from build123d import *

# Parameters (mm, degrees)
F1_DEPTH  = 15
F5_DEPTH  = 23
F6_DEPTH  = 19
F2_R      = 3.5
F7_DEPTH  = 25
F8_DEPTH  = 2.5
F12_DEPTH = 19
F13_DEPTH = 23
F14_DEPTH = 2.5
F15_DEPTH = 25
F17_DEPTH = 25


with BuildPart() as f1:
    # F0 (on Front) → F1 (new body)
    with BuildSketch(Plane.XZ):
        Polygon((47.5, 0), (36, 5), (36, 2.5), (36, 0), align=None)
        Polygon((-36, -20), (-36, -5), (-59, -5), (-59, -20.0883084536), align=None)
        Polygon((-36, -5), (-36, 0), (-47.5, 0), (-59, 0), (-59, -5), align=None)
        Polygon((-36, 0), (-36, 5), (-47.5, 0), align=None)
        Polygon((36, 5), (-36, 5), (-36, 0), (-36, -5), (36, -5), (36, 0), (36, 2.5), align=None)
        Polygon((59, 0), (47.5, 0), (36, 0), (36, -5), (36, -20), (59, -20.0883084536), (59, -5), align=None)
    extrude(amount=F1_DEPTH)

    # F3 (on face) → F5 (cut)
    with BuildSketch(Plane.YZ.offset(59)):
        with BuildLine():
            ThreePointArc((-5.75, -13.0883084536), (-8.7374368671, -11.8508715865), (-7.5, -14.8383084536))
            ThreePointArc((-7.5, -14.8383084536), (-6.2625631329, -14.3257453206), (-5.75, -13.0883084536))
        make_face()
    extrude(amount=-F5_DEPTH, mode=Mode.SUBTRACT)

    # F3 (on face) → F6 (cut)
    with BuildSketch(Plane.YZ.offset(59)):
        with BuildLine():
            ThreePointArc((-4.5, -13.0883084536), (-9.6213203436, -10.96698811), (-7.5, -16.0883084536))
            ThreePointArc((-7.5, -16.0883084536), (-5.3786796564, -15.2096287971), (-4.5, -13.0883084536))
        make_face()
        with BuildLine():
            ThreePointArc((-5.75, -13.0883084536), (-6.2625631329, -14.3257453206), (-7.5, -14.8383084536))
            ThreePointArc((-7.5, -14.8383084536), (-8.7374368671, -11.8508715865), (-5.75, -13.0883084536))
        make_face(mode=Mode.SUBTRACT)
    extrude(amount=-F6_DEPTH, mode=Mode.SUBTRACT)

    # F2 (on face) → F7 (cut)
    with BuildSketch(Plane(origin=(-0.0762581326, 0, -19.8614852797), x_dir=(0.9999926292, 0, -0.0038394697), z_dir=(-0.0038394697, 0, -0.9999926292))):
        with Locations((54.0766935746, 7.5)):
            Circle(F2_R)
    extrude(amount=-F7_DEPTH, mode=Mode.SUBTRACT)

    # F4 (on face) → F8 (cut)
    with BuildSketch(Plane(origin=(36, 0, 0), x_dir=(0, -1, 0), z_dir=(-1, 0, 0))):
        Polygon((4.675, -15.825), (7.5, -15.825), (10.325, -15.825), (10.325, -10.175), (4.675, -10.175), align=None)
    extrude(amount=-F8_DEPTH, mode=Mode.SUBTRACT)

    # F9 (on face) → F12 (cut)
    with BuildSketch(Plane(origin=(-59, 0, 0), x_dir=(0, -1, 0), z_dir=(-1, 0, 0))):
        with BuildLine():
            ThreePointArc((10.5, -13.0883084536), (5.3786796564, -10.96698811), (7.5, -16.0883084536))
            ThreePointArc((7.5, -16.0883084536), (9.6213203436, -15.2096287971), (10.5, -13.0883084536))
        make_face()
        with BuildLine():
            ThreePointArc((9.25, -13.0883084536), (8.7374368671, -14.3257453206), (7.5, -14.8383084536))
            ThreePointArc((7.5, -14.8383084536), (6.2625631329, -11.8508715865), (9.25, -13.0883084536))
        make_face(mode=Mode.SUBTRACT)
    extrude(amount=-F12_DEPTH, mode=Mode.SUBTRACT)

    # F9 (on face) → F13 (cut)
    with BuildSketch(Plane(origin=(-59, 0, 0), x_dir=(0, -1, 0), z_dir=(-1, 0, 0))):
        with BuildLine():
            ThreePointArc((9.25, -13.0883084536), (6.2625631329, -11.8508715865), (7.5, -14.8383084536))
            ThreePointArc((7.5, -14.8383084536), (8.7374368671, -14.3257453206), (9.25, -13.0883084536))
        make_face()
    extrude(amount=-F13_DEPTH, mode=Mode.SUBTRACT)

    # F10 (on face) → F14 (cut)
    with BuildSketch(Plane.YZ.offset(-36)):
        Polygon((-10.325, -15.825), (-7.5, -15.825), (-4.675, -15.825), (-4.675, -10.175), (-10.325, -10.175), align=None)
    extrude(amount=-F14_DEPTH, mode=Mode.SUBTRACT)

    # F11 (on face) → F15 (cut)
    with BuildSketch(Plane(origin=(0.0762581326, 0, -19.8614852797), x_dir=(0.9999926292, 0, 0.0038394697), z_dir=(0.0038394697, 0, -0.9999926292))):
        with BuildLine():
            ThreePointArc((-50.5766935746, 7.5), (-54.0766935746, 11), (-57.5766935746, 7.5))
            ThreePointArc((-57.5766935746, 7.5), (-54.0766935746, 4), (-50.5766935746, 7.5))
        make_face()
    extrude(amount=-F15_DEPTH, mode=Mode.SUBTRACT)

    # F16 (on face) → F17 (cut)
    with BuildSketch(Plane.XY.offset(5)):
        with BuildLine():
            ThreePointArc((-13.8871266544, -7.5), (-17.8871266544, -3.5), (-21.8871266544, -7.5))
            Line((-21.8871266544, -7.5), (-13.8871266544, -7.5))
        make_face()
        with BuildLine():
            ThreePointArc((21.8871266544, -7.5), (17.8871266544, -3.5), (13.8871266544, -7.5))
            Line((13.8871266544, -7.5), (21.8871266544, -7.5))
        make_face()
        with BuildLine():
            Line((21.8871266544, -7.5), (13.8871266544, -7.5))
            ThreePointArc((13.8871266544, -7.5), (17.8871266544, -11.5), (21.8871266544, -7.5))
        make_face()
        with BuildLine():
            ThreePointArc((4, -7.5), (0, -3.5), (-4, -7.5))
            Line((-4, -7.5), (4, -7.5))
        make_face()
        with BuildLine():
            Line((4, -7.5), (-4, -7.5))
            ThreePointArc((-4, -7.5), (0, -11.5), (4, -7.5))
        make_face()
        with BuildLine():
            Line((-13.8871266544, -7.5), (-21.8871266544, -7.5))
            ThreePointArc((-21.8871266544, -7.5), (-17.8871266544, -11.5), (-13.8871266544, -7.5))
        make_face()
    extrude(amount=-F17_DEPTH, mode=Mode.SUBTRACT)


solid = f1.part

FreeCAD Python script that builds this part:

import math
import FreeCAD as App
import Part
import Sketcher
from FreeCAD import Vector
Q = App.Units.Quantity

doc = App.newDocument("Part")
body = doc.addObject("PartDesign::Body", "Body")

sketch1 = body.newObject("Sketcher::SketchObject", "Sketch")
sketch1.AttachmentSupport = (doc.getObject("XZ_Plane"), [""])
sketch1.MapMode = "FlatFace"
sketch1.addGeometry(Part.LineSegment(Vector(47.5, 0, 0), Vector(36, 5, 0)), False)
sketch1.addGeometry(Part.LineSegment(Vector(36, 5, 0), Vector(-36, 5, 0)), False)
sketch1.addGeometry(Part.LineSegment(Vector(-36, 5, 0), Vector(-47.5, 0, 0)), False)
sketch1.addGeometry(Part.LineSegment(Vector(-47.5, 0, 0), Vector(-59, 0, 0)), False)
sketch1.addGeometry(Part.LineSegment(Vector(-59, 0, 0), Vector(-59, -20.088308, 0)), False)
sketch1.addGeometry(Part.LineSegment(Vector(-59, -20.088308, 0), Vector(-36, -20, 0)), False)
sketch1.addGeometry(Part.LineSegment(Vector(-36, -20, 0), Vector(-36, -5, 0)), False)
sketch1.addGeometry(Part.LineSegment(Vector(-36, -5, 0), Vector(36, -5, 0)), False)
sketch1.addGeometry(Part.LineSegment(Vector(36, -5, 0), Vector(36, -20, 0)), False)
sketch1.addGeometry(Part.LineSegment(Vector(36, -20, 0), Vector(59, -20.088308, 0)), False)
sketch1.addGeometry(Part.LineSegment(Vector(59, -20.088308, 0), Vector(59, 0, 0)), False)
sketch1.addGeometry(Part.LineSegment(Vector(59, 0, 0), Vector(47.5, 0, 0)), False)
sketch1.addConstraint(Sketcher.Constraint("Coincident", 0, 2, 1, 1))
sketch1.addConstraint(Sketcher.Constraint("Coincident", 1, 2, 2, 1))
sketch1.addConstraint(Sketcher.Constraint("Coincident", 2, 2, 3, 1))
sketch1.addConstraint(Sketcher.Constraint("Coincident", 3, 2, 4, 1))
sketch1.addConstraint(Sketcher.Constraint("Coincident", 4, 2, 5, 1))
sketch1.addConstraint(Sketcher.Constraint("Coincident", 5, 2, 6, 1))
sketch1.addConstraint(Sketcher.Constraint("Coincident", 6, 2, 7, 1))
sketch1.addConstraint(Sketcher.Constraint("Coincident", 7, 2, 8, 1))
sketch1.addConstraint(Sketcher.Constraint("Coincident", 8, 2, 9, 1))
sketch1.addConstraint(Sketcher.Constraint("Coincident", 9, 2, 10, 1))
sketch1.addConstraint(Sketcher.Constraint("Coincident", 10, 2, 11, 1))
sketch1.addConstraint(Sketcher.Constraint("Coincident", 11, 2, 0, 1))
sketch1.addConstraint(Sketcher.Constraint("Horizontal", 1))
sketch1.addConstraint(Sketcher.Constraint("Horizontal", 3))
sketch1.addConstraint(Sketcher.Constraint("Vertical", 4))
sketch1.addConstraint(Sketcher.Constraint("Vertical", 6))
sketch1.addConstraint(Sketcher.Constraint("Horizontal", 7))
sketch1.addConstraint(Sketcher.Constraint("Vertical", 8))
sketch1.addConstraint(Sketcher.Constraint("Vertical", 10))
sketch1.addConstraint(Sketcher.Constraint("Horizontal", 11))
sketch1.addConstraint(Sketcher.Constraint("Symmetric", 0, 2, 6, 2, -1, 1))
sketch1.addConstraint(Sketcher.Constraint("Symmetric", 3, 2, 10, 2, -1, 1))
sketch1.addConstraint(Sketcher.Constraint("Symmetric", 5, 2, 8, 2, -2))
sketch1.addConstraint(Sketcher.Constraint("Symmetric", 2, 2, 11, 2, -2))
sketch1.addConstraint(Sketcher.Constraint("Horizontal", 4, 2, 9, 2))
sketch1.addConstraint(Sketcher.Constraint("Vertical", 1, 2, 5, 2))
sketch1.addConstraint(Sketcher.Constraint("DistanceX", 1, 2, 1, 1, 72.0))
sketch1.addConstraint(Sketcher.Constraint("DistanceY", 6, 1, 6, 2, 15.0))
sketch1.addConstraint(Sketcher.Constraint("DistanceX", 3, 2, 3, 1, 11.5))
sketch1.addConstraint(Sketcher.Constraint("DistanceY", -1, 1, 0, 2, 5.0))
sketch1.addConstraint(Sketcher.Constraint("DistanceX", 3, 2, -1, 1, 59.0))
sketch1.addConstraint(Sketcher.Constraint("Angle", 5, Q("0.219986 deg")))
pad1 = body.newObject("PartDesign::Pad", "Pad")
pad1.Profile = sketch1
pad1.Length = 15

sketch2 = body.newObject("Sketcher::SketchObject", "Sketch001")
sketch2.AttachmentSupport = (doc.getObject("YZ_Plane"), [""])
sketch2.MapMode = "FlatFace"
sketch2.AttachmentOffset = App.Placement(Vector(0, 0, 59), App.Rotation())
sketch2.addGeometry(Part.ArcOfCircle(Part.Circle(Vector(-7.5, -13.088308, 0), Vector(0, 0, 1), 1.75), math.radians(0), math.radians(270)), False)
sketch2.addGeometry(Part.ArcOfCircle(Part.Circle(Vector(-7.5, -13.088308, 0), Vector(0, 0, 1), 1.75), math.radians(-90), math.radians(0)), False)
sketch2.addConstraint(Sketcher.Constraint("Tangent", 0, 1, 1, 2))
sketch2.addConstraint(Sketcher.Constraint("Coincident", 1, 1, 0, 2))
sketch2.addConstraint(Sketcher.Constraint("Horizontal", 1, 3, 0, 1))
sketch2.addConstraint(Sketcher.Constraint("Vertical", 0, 3, 1, 1))
sketch2.addConstraint(Sketcher.Constraint("Radius", 0, 1.75))
sketch2.addConstraint(Sketcher.Constraint("DistanceX", 0, 3, -1, 1, 7.5))
sketch2.addConstraint(Sketcher.Constraint("DistanceY", 0, 3, -1, 1, 13.088308))
pocket1 = body.newObject("PartDesign::Pocket", "Pocket")
pocket1.Profile = sketch2
pocket1.Length = 23

sketch3 = body.newObject("Sketcher::SketchObject", "Sketch002")
sketch3.AttachmentSupport = (doc.getObject("YZ_Plane"), [""])
sketch3.MapMode = "FlatFace"
sketch3.AttachmentOffset = App.Placement(Vector(0, 0, 59), App.Rotation())
sketch3.addGeometry(Part.ArcOfCircle(Part.Circle(Vector(-7.5, -13.088308, 0), Vector(0, 0, 1), 3), math.radians(0), math.radians(270)), False)
sketch3.addGeometry(Part.ArcOfCircle(Part.Circle(Vector(-7.5, -13.088308, 0), Vector(0, 0, 1), 3), math.radians(-90), math.radians(0)), False)
sketch3.addGeometry(Part.ArcOfCircle(Part.Circle(Vector(-7.5, -13.088308, 0), Vector(0, 0, 1), 1.75), math.radians(0), math.radians(270)), False)
sketch3.addGeometry(Part.ArcOfCircle(Part.Circle(Vector(-7.5, -13.088308, 0), Vector(0, 0, 1), 1.75), math.radians(-90), math.radians(0)), False)
sketch3.addConstraint(Sketcher.Constraint("Tangent", 0, 1, 1, 2))
sketch3.addConstraint(Sketcher.Constraint("Coincident", 1, 1, 0, 2))
sketch3.addConstraint(Sketcher.Constraint("Tangent", 2, 1, 3, 2))
sketch3.addConstraint(Sketcher.Constraint("Coincident", 3, 1, 2, 2))
sketch3.addConstraint(Sketcher.Constraint("Coincident", 2, 3, 0, 3))
sketch3.addConstraint(Sketcher.Constraint("Horizontal", 3, 3, 0, 1))
sketch3.addConstraint(Sketcher.Constraint("Horizontal", 0, 1, 2, 1))
sketch3.addConstraint(Sketcher.Constraint("Vertical", 3, 3, 1, 1))
sketch3.addConstraint(Sketcher.Constraint("Vertical", 1, 1, 3, 1))
sketch3.addConstraint(Sketcher.Constraint("Radius", 0, 3.0))
sketch3.addConstraint(Sketcher.Constraint("Radius", 2, 1.75))
sketch3.addConstraint(Sketcher.Constraint("DistanceX", 0, 3, -1, 1, 7.5))
sketch3.addConstraint(Sketcher.Constraint("DistanceY", 0, 3, -1, 1, 13.088308))
pocket2 = body.newObject("PartDesign::Pocket", "Pocket001")
pocket2.Profile = sketch3
pocket2.Length = 19

sketch4 = body.newObject("Sketcher::SketchObject", "Sketch003")
sketch4.Placement = App.Placement(Vector(-0.076258, 0, -19.861485), App.Rotation(Vector(0.999992629, 0, -0.00383947), Vector(0, -1, 0), Vector(-0.00383947, 0, -0.999992629), "ZXY"))
sketch4.addGeometry(Part.Circle(Vector(54.076694, 7.5, 0), Vector(0, 0, 1), 3.5), False)
sketch4.addConstraint(Sketcher.Constraint("Diameter", 0, 7.0))
sketch4.addConstraint(Sketcher.Constraint("DistanceY", -1, 1, 0, 3, 7.5))
sketch4.addConstraint(Sketcher.Constraint("DistanceX", -1, 1, 0, 3, 54.076694))
pocket3 = body.newObject("PartDesign::Pocket", "Pocket002")
pocket3.Profile = sketch4
pocket3.Length = 25

sketch5 = body.newObject("Sketcher::SketchObject", "Sketch004")
sketch5.AttachmentSupport = (doc.getObject("YZ_Plane"), [""])
sketch5.MapMode = "FlatFace"
sketch5.AttachmentOffset = App.Placement(Vector(0, 0, 36), App.Rotation())
sketch5.addGeometry(Part.LineSegment(Vector(-4.675, -15.825, 0), Vector(-10.325, -15.825, 0)), False)
sketch5.addGeometry(Part.LineSegment(Vector(-10.325, -15.825, 0), Vector(-10.325, -10.175, 0)), False)
sketch5.addGeometry(Part.LineSegment(Vector(-10.325, -10.175, 0), Vector(-4.675, -10.175, 0)), False)
sketch5.addGeometry(Part.LineSegment(Vector(-4.675, -10.175, 0), Vector(-4.675, -15.825, 0)), False)
sketch5.addConstraint(Sketcher.Constraint("Coincident", 0, 2, 1, 1))
sketch5.addConstraint(Sketcher.Constraint("Coincident", 1, 2, 2, 1))
sketch5.addConstraint(Sketcher.Constraint("Coincident", 2, 2, 3, 1))
sketch5.addConstraint(Sketcher.Constraint("Coincident", 3, 2, 0, 1))
sketch5.addConstraint(Sketcher.Constraint("Horizontal", 0))
sketch5.addConstraint(Sketcher.Constraint("Vertical", 1))
sketch5.addConstraint(Sketcher.Constraint("Horizontal", 2))
sketch5.addConstraint(Sketcher.Constraint("Vertical", 3))
sketch5.addConstraint(Sketcher.Constraint("Equal", 2, 1))
sketch5.addConstraint(Sketcher.Constraint("DistanceX", 0, 2, 0, 1, 5.65))
sketch5.addConstraint(Sketcher.Constraint("DistanceX", 0, 2, -1, 1, 10.325))
sketch5.addConstraint(Sketcher.Constraint("DistanceY", 0, 2, -1, 1, 15.825))
pocket4 = body.newObject("PartDesign::Pocket", "Pocket003")
pocket4.Profile = sketch5
pocket4.Length = 2.5
pocket4.Reversed = True

sketch6 = body.newObject("Sketcher::SketchObject", "Sketch005")
sketch6.AttachmentSupport = (doc.getObject("YZ_Plane"), [""])
sketch6.MapMode = "FlatFace"
sketch6.AttachmentOffset = App.Placement(Vector(0, 0, -59), App.Rotation())
sketch6.addGeometry(Part.ArcOfCircle(Part.Circle(Vector(-7.5, -13.088308, 0), Vector(0, 0, 1), 3), math.radians(-90), math.radians(180)), False)
sketch6.addGeometry(Part.ArcOfCircle(Part.Circle(Vector(-7.5, -13.088308, 0), Vector(0, 0, 1), 3), math.radians(180), math.radians(270)), False)
sketch6.addGeometry(Part.ArcOfCircle(Part.Circle(Vector(-7.5, -13.088308, 0), Vector(0, 0, 1), 1.75), math.radians(-90), math.radians(180)), False)
sketch6.addGeometry(Part.ArcOfCircle(Part.Circle(Vector(-7.5, -13.088308, 0), Vector(0, 0, 1), 1.75), math.radians(180), math.radians(270)), False)
sketch6.addConstraint(Sketcher.Constraint("Tangent", 0, 1, 1, 2))
sketch6.addConstraint(Sketcher.Constraint("Coincident", 1, 1, 0, 2))
sketch6.addConstraint(Sketcher.Constraint("Tangent", 2, 1, 3, 2))
sketch6.addConstraint(Sketcher.Constraint("Coincident", 3, 1, 2, 2))
sketch6.addConstraint(Sketcher.Constraint("Coincident", 2, 3, 0, 3))
sketch6.addConstraint(Sketcher.Constraint("Horizontal", 3, 3, 1, 1))
sketch6.addConstraint(Sketcher.Constraint("Horizontal", 1, 1, 3, 1))
sketch6.addConstraint(Sketcher.Constraint("Vertical", 3, 3, 0, 1))
sketch6.addConstraint(Sketcher.Constraint("Vertical", 0, 1, 2, 1))
sketch6.addConstraint(Sketcher.Constraint("Radius", 0, 3.0))
sketch6.addConstraint(Sketcher.Constraint("Radius", 2, 1.75))
sketch6.addConstraint(Sketcher.Constraint("DistanceX", 0, 3, -1, 1, 7.5))
sketch6.addConstraint(Sketcher.Constraint("DistanceY", 0, 3, -1, 1, 13.088308))
pocket5 = body.newObject("PartDesign::Pocket", "Pocket004")
pocket5.Profile = sketch6
pocket5.Length = 19
pocket5.Reversed = True

sketch7 = body.newObject("Sketcher::SketchObject", "Sketch006")
sketch7.AttachmentSupport = (doc.getObject("YZ_Plane"), [""])
sketch7.MapMode = "FlatFace"
sketch7.AttachmentOffset = App.Placement(Vector(0, 0, -59), App.Rotation())
sketch7.addGeometry(Part.ArcOfCircle(Part.Circle(Vector(-7.5, -13.088308, 0), Vector(0, 0, 1), 1.75), math.radians(-90), math.radians(180)), False)
sketch7.addGeometry(Part.ArcOfCircle(Part.Circle(Vector(-7.5, -13.088308, 0), Vector(0, 0, 1), 1.75), math.radians(180), math.radians(270)), False)
sketch7.addConstraint(Sketcher.Constraint("Tangent", 0, 1, 1, 2))
sketch7.addConstraint(Sketcher.Constraint("Coincident", 1, 1, 0, 2))
sketch7.addConstraint(Sketcher.Constraint("Horizontal", 0, 3, 1, 1))
sketch7.addConstraint(Sketcher.Constraint("Vertical", 1, 3, 0, 1))
sketch7.addConstraint(Sketcher.Constraint("Radius", 0, 1.75))
sketch7.addConstraint(Sketcher.Constraint("DistanceX", 0, 3, -1, 1, 7.5))
sketch7.addConstraint(Sketcher.Constraint("DistanceY", 0, 3, -1, 1, 13.088308))
pocket6 = body.newObject("PartDesign::Pocket", "Pocket005")
pocket6.Profile = sketch7
pocket6.Length = 23
pocket6.Reversed = True

sketch8 = body.newObject("Sketcher::SketchObject", "Sketch007")
sketch8.AttachmentSupport = (doc.getObject("YZ_Plane"), [""])
sketch8.MapMode = "FlatFace"
sketch8.AttachmentOffset = App.Placement(Vector(0, 0, -36), App.Rotation())
sketch8.addGeometry(Part.LineSegment(Vector(-10.325, -15.825, 0), Vector(-4.675, -15.825, 0)), False)
sketch8.addGeometry(Part.LineSegment(Vector(-4.675, -15.825, 0), Vector(-4.675, -10.175, 0)), False)
sketch8.addGeometry(Part.LineSegment(Vector(-4.675, -10.175, 0), Vector(-10.325, -10.175, 0)), False)
sketch8.addGeometry(Part.LineSegment(Vector(-10.325, -10.175, 0), Vector(-10.325, -15.825, 0)), False)
sketch8.addConstraint(Sketcher.Constraint("Coincident", 0, 2, 1, 1))
sketch8.addConstraint(Sketcher.Constraint("Coincident", 1, 2, 2, 1))
sketch8.addConstraint(Sketcher.Constraint("Coincident", 2, 2, 3, 1))
sketch8.addConstraint(Sketcher.Constraint("Coincident", 3, 2, 0, 1))
sketch8.addConstraint(Sketcher.Constraint("Horizontal", 0))
sketch8.addConstraint(Sketcher.Constraint("Vertical", 1))
sketch8.addConstraint(Sketcher.Constraint("Horizontal", 2))
sketch8.addConstraint(Sketcher.Constraint("Vertical", 3))
sketch8.addConstraint(Sketcher.Constraint("Equal", 2, 1))
sketch8.addConstraint(Sketcher.Constraint("DistanceX", 0, 1, 0, 2, 5.65))
sketch8.addConstraint(Sketcher.Constraint("DistanceX", 0, 2, -1, 1, 4.675))
sketch8.addConstraint(Sketcher.Constraint("DistanceY", 0, 2, -1, 1, 15.825))
pocket7 = body.newObject("PartDesign::Pocket", "Pocket006")
pocket7.Profile = sketch8
pocket7.Length = 2.5

sketch9 = body.newObject("Sketcher::SketchObject", "Sketch008")
sketch9.Placement = App.Placement(Vector(0.076258, 0, -19.861485), App.Rotation(Vector(0.999992629, 0, 0.00383947), Vector(0, -1, 0), Vector(0.00383947, 0, -0.999992629), "ZXY"))
sketch9.addGeometry(Part.Circle(Vector(-54.076694, 7.5, 0), Vector(0, 0, 1), 3.5), False)
sketch9.addConstraint(Sketcher.Constraint("Diameter", 0, 7.0))
sketch9.addConstraint(Sketcher.Constraint("DistanceY", -1, 1, 0, 3, 7.5))
sketch9.addConstraint(Sketcher.Constraint("DistanceX", 0, 3, -1, 1, 54.076694))
pocket8 = body.newObject("PartDesign::Pocket", "Pocket007")
pocket8.Profile = sketch9
pocket8.Length = 25

sketch10 = body.newObject("Sketcher::SketchObject", "Sketch009")
sketch10.AttachmentSupport = (doc.getObject("XY_Plane"), [""])
sketch10.MapMode = "FlatFace"
sketch10.AttachmentOffset = App.Placement(Vector(0, 0, 5), App.Rotation())
sketch10.addGeometry(Part.Circle(Vector(-17.887127, -7.5, 0), Vector(0, 0, 1), 4), False)
sketch10.addGeometry(Part.Circle(Vector(17.887127, -7.5, 0), Vector(0, 0, 1), 4), False)
sketch10.addGeometry(Part.Circle(Vector(0, -7.5, 0), Vector(0, 0, 1), 4), False)
sketch10.addConstraint(Sketcher.Constraint("Equal", 0, 1))
sketch10.addConstraint(Sketcher.Constraint("Equal", 1, 2))
sketch10.addConstraint(Sketcher.Constraint("Symmetric", 0, 3, 1, 3, -2))
sketch10.addConstraint(Sketcher.Constraint("PointOnObject", 2, 3, -2))
sketch10.addConstraint(Sketcher.Constraint("Horizontal", 1, 3, 2, 3))
sketch10.addConstraint(Sketcher.Constraint("Diameter", 0, 8.0))
sketch10.addConstraint(Sketcher.Constraint("DistanceY", 0, 3, -1, 1, 7.5))
sketch10.addConstraint(Sketcher.Constraint("DistanceX", 0, 3, -1, 1, 17.887127))
pocket9 = body.newObject("PartDesign::Pocket", "Pocket008")
pocket9.Profile = sketch10
pocket9.Length = 25

doc.recompute()
